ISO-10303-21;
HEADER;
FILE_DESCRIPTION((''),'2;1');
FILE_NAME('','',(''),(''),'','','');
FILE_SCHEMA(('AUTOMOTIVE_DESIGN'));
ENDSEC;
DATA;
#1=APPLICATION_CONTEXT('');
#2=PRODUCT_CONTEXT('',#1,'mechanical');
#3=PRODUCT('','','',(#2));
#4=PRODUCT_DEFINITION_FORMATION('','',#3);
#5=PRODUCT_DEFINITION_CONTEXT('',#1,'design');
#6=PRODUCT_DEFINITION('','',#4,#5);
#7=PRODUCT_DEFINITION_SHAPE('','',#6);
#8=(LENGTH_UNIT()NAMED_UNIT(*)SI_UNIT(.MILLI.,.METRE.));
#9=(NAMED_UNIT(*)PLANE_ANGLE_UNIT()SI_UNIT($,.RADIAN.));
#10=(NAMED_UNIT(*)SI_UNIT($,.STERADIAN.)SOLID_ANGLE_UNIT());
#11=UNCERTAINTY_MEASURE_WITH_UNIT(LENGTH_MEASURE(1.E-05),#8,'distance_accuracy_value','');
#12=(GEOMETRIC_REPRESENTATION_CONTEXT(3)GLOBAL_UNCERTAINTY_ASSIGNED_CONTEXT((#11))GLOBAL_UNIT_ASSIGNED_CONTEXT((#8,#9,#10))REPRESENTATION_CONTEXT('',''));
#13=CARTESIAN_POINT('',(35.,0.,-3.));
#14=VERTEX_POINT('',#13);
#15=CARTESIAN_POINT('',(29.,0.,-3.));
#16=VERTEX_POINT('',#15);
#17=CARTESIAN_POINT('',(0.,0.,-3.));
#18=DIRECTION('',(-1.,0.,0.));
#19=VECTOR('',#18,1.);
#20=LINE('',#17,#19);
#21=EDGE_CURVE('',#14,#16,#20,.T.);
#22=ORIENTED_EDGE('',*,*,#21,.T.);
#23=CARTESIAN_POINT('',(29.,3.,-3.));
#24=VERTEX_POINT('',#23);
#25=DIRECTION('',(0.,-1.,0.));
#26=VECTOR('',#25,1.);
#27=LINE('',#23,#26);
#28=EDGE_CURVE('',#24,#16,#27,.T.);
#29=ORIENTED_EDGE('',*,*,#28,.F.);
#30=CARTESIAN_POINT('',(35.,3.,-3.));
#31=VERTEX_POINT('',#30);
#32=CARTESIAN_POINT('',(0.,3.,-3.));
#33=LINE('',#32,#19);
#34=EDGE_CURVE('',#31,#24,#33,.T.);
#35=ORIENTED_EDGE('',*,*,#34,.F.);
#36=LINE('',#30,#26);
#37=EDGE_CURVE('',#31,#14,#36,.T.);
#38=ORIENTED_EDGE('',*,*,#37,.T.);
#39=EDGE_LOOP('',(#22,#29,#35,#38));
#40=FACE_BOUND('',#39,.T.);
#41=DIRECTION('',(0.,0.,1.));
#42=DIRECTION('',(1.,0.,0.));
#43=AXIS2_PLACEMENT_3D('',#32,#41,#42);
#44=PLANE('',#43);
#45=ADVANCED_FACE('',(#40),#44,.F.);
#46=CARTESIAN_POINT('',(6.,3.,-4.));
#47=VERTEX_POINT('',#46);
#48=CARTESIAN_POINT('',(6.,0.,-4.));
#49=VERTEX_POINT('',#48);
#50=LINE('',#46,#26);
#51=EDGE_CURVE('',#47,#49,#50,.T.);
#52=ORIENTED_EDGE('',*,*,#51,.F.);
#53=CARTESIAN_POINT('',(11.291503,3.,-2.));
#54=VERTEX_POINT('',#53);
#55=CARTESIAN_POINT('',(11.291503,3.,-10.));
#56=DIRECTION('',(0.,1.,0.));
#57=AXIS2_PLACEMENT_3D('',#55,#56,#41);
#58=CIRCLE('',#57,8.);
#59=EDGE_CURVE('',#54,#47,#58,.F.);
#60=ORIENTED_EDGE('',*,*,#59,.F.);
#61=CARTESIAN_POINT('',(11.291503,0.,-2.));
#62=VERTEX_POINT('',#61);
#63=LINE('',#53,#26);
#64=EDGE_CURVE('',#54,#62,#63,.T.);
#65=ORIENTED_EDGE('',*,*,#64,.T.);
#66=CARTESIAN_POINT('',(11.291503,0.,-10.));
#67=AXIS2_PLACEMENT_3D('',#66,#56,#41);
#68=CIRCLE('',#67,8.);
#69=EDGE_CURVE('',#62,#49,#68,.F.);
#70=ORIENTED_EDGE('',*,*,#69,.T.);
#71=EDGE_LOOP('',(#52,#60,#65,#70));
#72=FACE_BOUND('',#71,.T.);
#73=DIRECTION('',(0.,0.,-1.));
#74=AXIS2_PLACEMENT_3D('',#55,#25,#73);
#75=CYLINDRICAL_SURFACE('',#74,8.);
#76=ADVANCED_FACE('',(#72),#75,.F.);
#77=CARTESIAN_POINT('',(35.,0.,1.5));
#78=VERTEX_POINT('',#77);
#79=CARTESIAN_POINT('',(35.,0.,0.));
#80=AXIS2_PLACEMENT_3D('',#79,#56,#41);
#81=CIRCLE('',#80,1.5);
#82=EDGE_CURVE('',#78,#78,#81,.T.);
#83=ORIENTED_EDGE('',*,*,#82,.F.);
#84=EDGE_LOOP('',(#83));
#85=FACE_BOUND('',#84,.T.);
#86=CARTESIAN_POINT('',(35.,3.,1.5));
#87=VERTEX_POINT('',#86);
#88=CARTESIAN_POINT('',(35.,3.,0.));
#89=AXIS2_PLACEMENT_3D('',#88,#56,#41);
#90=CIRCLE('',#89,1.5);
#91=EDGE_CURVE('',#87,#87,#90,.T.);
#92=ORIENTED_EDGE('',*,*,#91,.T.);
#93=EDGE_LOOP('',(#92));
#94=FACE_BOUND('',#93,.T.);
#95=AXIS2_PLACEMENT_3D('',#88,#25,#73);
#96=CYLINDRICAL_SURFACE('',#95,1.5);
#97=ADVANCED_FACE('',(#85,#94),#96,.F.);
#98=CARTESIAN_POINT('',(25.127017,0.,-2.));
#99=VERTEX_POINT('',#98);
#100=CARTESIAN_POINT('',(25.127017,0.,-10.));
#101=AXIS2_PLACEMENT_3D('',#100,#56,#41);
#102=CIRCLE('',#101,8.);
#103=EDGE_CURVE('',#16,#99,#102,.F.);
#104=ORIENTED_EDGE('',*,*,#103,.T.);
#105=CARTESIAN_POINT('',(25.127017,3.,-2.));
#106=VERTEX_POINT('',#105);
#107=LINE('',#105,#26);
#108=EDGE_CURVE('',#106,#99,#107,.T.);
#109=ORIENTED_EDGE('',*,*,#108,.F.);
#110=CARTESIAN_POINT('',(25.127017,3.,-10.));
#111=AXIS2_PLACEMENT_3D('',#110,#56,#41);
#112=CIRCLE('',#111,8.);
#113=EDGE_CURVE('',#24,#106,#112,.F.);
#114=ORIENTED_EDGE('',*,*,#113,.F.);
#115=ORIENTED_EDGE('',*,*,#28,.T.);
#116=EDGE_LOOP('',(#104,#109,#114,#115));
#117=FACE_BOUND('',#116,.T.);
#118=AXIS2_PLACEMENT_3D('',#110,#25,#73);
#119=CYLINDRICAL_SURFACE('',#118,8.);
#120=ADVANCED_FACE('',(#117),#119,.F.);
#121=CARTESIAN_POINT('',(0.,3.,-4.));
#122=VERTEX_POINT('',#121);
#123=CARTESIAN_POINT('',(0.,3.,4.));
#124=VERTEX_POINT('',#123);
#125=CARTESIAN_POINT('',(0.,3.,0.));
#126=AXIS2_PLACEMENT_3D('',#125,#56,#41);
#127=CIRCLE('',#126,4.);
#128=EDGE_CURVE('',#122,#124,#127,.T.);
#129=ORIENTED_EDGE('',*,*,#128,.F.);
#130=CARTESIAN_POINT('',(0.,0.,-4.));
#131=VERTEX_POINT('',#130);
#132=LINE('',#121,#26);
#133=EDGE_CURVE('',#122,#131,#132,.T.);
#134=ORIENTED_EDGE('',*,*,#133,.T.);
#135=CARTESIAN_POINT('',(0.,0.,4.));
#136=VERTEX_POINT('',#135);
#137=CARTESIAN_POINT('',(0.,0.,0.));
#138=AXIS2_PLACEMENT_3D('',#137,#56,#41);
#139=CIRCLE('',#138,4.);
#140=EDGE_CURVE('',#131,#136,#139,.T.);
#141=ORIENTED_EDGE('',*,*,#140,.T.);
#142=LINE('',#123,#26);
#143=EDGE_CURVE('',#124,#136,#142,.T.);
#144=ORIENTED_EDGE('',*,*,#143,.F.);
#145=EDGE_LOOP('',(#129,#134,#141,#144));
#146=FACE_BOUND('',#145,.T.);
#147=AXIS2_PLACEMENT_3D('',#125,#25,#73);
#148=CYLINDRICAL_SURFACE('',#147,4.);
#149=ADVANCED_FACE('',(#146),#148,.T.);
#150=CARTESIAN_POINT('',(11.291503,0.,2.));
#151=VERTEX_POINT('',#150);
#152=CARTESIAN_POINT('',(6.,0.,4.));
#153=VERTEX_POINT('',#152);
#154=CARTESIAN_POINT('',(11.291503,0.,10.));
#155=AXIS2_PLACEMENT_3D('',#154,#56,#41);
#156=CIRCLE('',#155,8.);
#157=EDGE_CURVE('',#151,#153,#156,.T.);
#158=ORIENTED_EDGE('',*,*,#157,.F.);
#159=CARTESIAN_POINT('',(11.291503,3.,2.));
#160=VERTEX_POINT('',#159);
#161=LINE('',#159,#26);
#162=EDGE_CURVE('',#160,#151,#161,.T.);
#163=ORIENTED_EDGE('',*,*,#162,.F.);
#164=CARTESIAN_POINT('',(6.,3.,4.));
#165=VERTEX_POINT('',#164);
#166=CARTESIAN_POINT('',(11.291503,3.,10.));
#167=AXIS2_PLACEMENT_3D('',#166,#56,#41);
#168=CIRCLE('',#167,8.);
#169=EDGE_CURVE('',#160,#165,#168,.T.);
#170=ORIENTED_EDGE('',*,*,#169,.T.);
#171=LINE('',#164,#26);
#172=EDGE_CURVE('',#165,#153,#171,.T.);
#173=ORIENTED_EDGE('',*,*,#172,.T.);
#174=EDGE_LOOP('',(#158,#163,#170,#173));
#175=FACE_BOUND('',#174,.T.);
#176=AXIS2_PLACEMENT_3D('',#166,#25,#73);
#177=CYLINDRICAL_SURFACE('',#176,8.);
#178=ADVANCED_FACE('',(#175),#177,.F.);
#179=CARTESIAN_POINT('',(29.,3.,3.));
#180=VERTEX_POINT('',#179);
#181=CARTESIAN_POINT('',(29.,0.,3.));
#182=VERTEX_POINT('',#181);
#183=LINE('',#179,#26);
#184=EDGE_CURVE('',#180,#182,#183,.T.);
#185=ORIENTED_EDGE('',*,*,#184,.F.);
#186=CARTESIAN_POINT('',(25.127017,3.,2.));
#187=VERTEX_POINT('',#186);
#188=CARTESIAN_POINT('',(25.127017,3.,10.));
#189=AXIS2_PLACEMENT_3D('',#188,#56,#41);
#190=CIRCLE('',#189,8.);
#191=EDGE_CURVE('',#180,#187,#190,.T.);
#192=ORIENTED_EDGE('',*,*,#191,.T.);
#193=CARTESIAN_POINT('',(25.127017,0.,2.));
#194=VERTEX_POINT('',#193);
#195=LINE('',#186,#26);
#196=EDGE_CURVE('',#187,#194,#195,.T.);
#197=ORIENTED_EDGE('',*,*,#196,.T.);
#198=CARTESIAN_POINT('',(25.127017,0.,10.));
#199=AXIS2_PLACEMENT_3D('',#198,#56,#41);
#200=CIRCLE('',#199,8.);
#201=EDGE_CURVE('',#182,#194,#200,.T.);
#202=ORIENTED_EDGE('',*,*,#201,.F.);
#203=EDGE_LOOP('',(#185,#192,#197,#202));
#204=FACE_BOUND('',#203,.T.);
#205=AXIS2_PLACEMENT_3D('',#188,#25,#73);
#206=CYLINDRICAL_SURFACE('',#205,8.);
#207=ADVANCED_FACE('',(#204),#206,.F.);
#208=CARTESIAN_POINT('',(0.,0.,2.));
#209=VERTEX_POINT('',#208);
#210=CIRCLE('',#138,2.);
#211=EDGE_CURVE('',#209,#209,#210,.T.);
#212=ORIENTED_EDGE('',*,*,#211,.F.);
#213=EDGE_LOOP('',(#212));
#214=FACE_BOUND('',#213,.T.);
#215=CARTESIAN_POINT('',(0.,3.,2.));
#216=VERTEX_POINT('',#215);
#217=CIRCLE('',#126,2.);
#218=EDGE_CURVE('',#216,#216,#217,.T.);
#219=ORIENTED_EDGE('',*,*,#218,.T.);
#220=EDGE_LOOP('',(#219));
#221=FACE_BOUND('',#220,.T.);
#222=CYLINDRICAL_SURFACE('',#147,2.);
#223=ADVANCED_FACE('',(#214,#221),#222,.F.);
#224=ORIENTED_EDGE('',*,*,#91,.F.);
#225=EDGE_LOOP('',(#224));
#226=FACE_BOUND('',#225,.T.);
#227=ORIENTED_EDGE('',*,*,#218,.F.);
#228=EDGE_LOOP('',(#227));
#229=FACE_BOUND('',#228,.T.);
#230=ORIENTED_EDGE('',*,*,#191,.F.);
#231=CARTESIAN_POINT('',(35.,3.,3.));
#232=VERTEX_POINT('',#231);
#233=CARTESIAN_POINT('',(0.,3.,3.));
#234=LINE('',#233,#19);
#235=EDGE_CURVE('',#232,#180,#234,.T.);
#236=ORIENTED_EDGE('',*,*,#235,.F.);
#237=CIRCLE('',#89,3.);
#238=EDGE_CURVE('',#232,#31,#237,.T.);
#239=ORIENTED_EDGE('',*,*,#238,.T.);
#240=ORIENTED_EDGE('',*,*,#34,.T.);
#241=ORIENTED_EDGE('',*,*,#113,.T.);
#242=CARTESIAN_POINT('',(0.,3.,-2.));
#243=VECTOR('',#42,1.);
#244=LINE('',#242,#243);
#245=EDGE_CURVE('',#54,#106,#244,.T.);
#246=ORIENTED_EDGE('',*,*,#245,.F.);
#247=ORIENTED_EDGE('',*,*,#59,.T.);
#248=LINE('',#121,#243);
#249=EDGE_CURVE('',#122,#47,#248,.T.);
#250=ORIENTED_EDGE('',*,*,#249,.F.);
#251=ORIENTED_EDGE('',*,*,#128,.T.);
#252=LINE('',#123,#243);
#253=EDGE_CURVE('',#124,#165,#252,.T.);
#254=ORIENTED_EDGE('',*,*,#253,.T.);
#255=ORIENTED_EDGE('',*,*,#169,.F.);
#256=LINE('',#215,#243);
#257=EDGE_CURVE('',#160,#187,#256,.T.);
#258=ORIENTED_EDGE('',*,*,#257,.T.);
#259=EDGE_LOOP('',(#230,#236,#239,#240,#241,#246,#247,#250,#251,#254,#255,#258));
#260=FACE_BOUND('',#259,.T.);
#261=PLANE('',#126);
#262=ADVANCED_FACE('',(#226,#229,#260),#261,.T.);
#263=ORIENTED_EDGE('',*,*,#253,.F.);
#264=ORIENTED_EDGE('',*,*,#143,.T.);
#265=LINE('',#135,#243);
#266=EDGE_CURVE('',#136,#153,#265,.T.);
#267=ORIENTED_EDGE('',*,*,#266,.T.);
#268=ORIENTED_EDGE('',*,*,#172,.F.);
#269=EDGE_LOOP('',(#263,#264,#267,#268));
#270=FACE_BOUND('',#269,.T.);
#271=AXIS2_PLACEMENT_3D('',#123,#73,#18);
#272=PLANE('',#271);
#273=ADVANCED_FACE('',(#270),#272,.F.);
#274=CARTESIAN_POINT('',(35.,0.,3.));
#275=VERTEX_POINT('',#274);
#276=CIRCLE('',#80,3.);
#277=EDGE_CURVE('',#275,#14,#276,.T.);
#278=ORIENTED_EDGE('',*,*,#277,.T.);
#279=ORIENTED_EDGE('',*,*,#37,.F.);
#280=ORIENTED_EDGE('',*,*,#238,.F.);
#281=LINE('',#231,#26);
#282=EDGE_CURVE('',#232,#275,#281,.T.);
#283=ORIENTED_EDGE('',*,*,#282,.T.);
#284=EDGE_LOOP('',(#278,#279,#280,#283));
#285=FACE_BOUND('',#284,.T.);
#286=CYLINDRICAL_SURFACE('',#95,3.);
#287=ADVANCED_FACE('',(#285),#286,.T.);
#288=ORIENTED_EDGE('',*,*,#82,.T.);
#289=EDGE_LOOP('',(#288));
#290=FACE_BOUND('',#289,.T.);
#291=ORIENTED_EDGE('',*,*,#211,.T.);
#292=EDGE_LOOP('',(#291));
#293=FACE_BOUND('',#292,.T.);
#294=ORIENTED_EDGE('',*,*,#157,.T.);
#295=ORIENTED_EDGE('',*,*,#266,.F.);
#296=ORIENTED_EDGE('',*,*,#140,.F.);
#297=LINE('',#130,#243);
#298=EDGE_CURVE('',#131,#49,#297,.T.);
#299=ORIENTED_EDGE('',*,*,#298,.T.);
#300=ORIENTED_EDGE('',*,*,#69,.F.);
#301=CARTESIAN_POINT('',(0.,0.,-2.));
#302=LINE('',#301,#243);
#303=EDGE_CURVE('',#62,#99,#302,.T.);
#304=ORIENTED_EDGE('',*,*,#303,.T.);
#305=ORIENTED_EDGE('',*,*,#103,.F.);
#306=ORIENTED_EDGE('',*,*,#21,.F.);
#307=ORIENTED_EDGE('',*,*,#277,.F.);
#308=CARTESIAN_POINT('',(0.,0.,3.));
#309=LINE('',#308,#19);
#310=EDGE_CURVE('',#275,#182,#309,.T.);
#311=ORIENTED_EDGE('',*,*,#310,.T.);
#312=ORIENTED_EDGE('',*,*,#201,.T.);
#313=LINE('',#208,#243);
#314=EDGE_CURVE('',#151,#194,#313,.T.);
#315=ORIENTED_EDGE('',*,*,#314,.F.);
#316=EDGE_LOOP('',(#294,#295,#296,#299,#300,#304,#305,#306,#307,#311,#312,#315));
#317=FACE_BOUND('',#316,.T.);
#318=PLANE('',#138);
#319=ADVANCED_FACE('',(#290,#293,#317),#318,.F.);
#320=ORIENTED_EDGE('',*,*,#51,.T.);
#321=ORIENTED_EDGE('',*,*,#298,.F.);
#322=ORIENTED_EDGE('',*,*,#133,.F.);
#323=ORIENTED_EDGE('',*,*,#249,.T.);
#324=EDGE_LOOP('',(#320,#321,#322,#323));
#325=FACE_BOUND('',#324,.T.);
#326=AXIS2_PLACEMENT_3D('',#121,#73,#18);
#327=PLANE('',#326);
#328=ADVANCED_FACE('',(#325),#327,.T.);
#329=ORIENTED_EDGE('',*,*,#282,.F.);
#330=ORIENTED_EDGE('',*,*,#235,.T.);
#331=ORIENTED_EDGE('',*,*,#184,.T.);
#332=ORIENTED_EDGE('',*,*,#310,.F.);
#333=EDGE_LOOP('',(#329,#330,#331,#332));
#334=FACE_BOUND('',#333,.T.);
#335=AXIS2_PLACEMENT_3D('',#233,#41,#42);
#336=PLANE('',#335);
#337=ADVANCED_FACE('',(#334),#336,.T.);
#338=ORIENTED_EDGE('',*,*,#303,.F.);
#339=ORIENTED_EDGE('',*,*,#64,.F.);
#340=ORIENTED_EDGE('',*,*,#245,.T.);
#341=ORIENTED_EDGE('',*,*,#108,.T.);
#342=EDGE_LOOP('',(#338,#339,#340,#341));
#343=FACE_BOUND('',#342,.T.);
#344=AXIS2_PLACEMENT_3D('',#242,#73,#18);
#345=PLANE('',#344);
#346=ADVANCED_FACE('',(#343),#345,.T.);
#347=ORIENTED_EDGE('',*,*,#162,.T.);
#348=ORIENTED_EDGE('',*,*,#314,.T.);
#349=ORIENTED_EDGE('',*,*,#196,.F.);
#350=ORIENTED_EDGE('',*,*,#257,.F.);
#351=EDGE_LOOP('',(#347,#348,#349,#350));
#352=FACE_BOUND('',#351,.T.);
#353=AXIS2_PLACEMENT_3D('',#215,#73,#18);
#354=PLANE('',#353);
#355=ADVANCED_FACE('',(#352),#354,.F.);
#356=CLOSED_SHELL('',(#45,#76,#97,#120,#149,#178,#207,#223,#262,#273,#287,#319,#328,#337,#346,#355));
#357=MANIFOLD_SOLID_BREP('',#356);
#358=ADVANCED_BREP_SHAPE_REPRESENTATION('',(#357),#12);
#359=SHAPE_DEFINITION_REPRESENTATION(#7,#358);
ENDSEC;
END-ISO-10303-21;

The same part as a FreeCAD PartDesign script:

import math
import FreeCAD as App
import Part
import Sketcher

V = App.Vector
Q = App.Units.Quantity

doc = App.newDocument("Part")
body = doc.addObject("PartDesign::Body", "Body")

# Sketch on XZ plane
sketch1 = body.newObject("Sketcher::SketchObject", "Sketch")
sketch1.AttachmentSupport = (doc.getObject("XZ_Plane"), [""])
sketch1.MapMode = "FlatFace"
sketch1.addGeometry(Part.LineSegment(V(0, 4, 0), V(6, 4, 0)), False)
sketch1.addGeometry(Part.ArcOfCircle(Part.Circle(V(11.3, 10, 0), V(0, 0, 1), 8), math.radians(-131), math.radians(-90)), False)
sketch1.addGeometry(Part.LineSegment(V(11.3, 2, 0), V(25.1, 2, 0)), False)
sketch1.addGeometry(Part.ArcOfCircle(Part.Circle(V(25.1, 10, 0), V(0, 0, 1), 8), math.radians(-90), math.radians(-61)), False)
sketch1.addGeometry(Part.LineSegment(V(29, 3, 0), V(35, 3, 0)), False)
sketch1.addGeometry(Part.ArcOfCircle(Part.Circle(V(35, 0, 0), V(0, 0, 1), 3), math.radians(-90), math.radians(90)), False)
sketch1.addGeometry(Part.LineSegment(V(35, -3, 0), V(29, -3, 0)), False)
sketch1.addGeometry(Part.ArcOfCircle(Part.Circle(V(25.1, -10, 0), V(0, 0, 1), 8), math.radians(61), math.radians(90)), False)
sketch1.addGeometry(Part.LineSegment(V(25.1, -2, 0), V(11.3, -2, 0)), False)
sketch1.addGeometry(Part.ArcOfCircle(Part.Circle(V(11.3, -10, 0), V(0, 0, 1), 8), math.radians(90), math.radians(131)), False)
sketch1.addGeometry(Part.LineSegment(V(6, -4, 0), V(0, -4, 0)), False)
sketch1.addGeometry(Part.ArcOfCircle(Part.Circle(V(0, 0, 0), V(0, 0, 1), 4), math.radians(90), math.radians(270)), False)
sketch1.addGeometry(Part.Circle(V(35, 0, 0), V(0, 0, 1), 1.5), False)
sketch1.addGeometry(Part.Circle(V(0, 0, 0), V(0, 0, 1), 2), False)
sketch1.addConstraint(Sketcher.Constraint("Coincident", 0, 2, 1, 1))
sketch1.addConstraint(Sketcher.Constraint("Tangent", 1, 2, 2, 1))
sketch1.addConstraint(Sketcher.Constraint("Tangent", 2, 2, 3, 1))
sketch1.addConstraint(Sketcher.Constraint("Coincident", 3, 2, 4, 1))
sketch1.addConstraint(Sketcher.Constraint("Tangent", 4, 2, 5, 2))
sketch1.addConstraint(Sketcher.Constraint("Tangent", 5, 1, 6, 1))
sketch1.addConstraint(Sketcher.Constraint("Coincident", 6, 2, 7, 1))
sketch1.addConstraint(Sketcher.Constraint("Tangent", 7, 2, 8, 1))
sketch1.addConstraint(Sketcher.Constraint("Tangent", 8, 2, 9, 1))
sketch1.addConstraint(Sketcher.Constraint("Coincident", 9, 2, 10, 1))
sketch1.addConstraint(Sketcher.Constraint("Tangent", 10, 2, 11, 2))
sketch1.addConstraint(Sketcher.Constraint("Tangent", 11, 1, 0, 1))
sketch1.addConstraint(Sketcher.Constraint("Horizontal", 0))
sketch1.addConstraint(Sketcher.Constraint("Horizontal", 2))
sketch1.addConstraint(Sketcher.Constraint("Horizontal", 4))
sketch1.addConstraint(Sketcher.Constraint("Horizontal", 6))
sketch1.addConstraint(Sketcher.Constraint("Horizontal", 8))
sketch1.addConstraint(Sketcher.Constraint("Horizontal", 10))
sketch1.addConstraint(Sketcher.Constraint("Coincident", 11, 3, -1, 1))
sketch1.addConstraint(Sketcher.Constraint("Coincident", 13, 3, -1, 1))
sketch1.addConstraint(Sketcher.Constraint("Coincident", 12, 3, 5, 3))
sketch1.addConstraint(Sketcher.Constraint("Equal", 1, 3))
sketch1.addConstraint(Sketcher.Constraint("Equal", 3, 7))
sketch1.addConstraint(Sketcher.Constraint("Equal", 7, 9))
sketch1.addConstraint(Sketcher.Constraint("Symmetric", 3, 3, 7, 3, -1))
sketch1.addConstraint(Sketcher.Constraint("PointOnObject", 5, 3, -1))
sketch1.addConstraint(Sketcher.Constraint("Vertical", 1, 3, 9, 3))
sketch1.addConstraint(Sketcher.Constraint("Equal", 0, 4))
sketch1.addConstraint(Sketcher.Constraint("Diameter", 12, Q("3 mm")))
sketch1.addConstraint(Sketcher.Constraint("Diameter", 13, Q("4 mm")))
sketch1.addConstraint(Sketcher.Constraint("Radius", 1, Q("8 mm")))
sketch1.addConstraint(Sketcher.Constraint("Radius", 5, Q("3 mm")))
sketch1.addConstraint(Sketcher.Constraint("Radius", 11, Q("4 mm")))
sketch1.addConstraint(Sketcher.Constraint("DistanceX", 0, 1, 0, 2, Q("6 mm")))
sketch1.addConstraint(Sketcher.Constraint("DistanceY", -1, 1, 1, 3, Q("10 mm")))
sketch1.addConstraint(Sketcher.Constraint("DistanceX", -1, 1, 5, 3, Q("35 mm")))
pad1 = body.newObject("PartDesign::Pad", "Pad")
pad1.Profile = sketch1
pad1.Length = 3
pad1.Reversed = True

doc.recompute()
